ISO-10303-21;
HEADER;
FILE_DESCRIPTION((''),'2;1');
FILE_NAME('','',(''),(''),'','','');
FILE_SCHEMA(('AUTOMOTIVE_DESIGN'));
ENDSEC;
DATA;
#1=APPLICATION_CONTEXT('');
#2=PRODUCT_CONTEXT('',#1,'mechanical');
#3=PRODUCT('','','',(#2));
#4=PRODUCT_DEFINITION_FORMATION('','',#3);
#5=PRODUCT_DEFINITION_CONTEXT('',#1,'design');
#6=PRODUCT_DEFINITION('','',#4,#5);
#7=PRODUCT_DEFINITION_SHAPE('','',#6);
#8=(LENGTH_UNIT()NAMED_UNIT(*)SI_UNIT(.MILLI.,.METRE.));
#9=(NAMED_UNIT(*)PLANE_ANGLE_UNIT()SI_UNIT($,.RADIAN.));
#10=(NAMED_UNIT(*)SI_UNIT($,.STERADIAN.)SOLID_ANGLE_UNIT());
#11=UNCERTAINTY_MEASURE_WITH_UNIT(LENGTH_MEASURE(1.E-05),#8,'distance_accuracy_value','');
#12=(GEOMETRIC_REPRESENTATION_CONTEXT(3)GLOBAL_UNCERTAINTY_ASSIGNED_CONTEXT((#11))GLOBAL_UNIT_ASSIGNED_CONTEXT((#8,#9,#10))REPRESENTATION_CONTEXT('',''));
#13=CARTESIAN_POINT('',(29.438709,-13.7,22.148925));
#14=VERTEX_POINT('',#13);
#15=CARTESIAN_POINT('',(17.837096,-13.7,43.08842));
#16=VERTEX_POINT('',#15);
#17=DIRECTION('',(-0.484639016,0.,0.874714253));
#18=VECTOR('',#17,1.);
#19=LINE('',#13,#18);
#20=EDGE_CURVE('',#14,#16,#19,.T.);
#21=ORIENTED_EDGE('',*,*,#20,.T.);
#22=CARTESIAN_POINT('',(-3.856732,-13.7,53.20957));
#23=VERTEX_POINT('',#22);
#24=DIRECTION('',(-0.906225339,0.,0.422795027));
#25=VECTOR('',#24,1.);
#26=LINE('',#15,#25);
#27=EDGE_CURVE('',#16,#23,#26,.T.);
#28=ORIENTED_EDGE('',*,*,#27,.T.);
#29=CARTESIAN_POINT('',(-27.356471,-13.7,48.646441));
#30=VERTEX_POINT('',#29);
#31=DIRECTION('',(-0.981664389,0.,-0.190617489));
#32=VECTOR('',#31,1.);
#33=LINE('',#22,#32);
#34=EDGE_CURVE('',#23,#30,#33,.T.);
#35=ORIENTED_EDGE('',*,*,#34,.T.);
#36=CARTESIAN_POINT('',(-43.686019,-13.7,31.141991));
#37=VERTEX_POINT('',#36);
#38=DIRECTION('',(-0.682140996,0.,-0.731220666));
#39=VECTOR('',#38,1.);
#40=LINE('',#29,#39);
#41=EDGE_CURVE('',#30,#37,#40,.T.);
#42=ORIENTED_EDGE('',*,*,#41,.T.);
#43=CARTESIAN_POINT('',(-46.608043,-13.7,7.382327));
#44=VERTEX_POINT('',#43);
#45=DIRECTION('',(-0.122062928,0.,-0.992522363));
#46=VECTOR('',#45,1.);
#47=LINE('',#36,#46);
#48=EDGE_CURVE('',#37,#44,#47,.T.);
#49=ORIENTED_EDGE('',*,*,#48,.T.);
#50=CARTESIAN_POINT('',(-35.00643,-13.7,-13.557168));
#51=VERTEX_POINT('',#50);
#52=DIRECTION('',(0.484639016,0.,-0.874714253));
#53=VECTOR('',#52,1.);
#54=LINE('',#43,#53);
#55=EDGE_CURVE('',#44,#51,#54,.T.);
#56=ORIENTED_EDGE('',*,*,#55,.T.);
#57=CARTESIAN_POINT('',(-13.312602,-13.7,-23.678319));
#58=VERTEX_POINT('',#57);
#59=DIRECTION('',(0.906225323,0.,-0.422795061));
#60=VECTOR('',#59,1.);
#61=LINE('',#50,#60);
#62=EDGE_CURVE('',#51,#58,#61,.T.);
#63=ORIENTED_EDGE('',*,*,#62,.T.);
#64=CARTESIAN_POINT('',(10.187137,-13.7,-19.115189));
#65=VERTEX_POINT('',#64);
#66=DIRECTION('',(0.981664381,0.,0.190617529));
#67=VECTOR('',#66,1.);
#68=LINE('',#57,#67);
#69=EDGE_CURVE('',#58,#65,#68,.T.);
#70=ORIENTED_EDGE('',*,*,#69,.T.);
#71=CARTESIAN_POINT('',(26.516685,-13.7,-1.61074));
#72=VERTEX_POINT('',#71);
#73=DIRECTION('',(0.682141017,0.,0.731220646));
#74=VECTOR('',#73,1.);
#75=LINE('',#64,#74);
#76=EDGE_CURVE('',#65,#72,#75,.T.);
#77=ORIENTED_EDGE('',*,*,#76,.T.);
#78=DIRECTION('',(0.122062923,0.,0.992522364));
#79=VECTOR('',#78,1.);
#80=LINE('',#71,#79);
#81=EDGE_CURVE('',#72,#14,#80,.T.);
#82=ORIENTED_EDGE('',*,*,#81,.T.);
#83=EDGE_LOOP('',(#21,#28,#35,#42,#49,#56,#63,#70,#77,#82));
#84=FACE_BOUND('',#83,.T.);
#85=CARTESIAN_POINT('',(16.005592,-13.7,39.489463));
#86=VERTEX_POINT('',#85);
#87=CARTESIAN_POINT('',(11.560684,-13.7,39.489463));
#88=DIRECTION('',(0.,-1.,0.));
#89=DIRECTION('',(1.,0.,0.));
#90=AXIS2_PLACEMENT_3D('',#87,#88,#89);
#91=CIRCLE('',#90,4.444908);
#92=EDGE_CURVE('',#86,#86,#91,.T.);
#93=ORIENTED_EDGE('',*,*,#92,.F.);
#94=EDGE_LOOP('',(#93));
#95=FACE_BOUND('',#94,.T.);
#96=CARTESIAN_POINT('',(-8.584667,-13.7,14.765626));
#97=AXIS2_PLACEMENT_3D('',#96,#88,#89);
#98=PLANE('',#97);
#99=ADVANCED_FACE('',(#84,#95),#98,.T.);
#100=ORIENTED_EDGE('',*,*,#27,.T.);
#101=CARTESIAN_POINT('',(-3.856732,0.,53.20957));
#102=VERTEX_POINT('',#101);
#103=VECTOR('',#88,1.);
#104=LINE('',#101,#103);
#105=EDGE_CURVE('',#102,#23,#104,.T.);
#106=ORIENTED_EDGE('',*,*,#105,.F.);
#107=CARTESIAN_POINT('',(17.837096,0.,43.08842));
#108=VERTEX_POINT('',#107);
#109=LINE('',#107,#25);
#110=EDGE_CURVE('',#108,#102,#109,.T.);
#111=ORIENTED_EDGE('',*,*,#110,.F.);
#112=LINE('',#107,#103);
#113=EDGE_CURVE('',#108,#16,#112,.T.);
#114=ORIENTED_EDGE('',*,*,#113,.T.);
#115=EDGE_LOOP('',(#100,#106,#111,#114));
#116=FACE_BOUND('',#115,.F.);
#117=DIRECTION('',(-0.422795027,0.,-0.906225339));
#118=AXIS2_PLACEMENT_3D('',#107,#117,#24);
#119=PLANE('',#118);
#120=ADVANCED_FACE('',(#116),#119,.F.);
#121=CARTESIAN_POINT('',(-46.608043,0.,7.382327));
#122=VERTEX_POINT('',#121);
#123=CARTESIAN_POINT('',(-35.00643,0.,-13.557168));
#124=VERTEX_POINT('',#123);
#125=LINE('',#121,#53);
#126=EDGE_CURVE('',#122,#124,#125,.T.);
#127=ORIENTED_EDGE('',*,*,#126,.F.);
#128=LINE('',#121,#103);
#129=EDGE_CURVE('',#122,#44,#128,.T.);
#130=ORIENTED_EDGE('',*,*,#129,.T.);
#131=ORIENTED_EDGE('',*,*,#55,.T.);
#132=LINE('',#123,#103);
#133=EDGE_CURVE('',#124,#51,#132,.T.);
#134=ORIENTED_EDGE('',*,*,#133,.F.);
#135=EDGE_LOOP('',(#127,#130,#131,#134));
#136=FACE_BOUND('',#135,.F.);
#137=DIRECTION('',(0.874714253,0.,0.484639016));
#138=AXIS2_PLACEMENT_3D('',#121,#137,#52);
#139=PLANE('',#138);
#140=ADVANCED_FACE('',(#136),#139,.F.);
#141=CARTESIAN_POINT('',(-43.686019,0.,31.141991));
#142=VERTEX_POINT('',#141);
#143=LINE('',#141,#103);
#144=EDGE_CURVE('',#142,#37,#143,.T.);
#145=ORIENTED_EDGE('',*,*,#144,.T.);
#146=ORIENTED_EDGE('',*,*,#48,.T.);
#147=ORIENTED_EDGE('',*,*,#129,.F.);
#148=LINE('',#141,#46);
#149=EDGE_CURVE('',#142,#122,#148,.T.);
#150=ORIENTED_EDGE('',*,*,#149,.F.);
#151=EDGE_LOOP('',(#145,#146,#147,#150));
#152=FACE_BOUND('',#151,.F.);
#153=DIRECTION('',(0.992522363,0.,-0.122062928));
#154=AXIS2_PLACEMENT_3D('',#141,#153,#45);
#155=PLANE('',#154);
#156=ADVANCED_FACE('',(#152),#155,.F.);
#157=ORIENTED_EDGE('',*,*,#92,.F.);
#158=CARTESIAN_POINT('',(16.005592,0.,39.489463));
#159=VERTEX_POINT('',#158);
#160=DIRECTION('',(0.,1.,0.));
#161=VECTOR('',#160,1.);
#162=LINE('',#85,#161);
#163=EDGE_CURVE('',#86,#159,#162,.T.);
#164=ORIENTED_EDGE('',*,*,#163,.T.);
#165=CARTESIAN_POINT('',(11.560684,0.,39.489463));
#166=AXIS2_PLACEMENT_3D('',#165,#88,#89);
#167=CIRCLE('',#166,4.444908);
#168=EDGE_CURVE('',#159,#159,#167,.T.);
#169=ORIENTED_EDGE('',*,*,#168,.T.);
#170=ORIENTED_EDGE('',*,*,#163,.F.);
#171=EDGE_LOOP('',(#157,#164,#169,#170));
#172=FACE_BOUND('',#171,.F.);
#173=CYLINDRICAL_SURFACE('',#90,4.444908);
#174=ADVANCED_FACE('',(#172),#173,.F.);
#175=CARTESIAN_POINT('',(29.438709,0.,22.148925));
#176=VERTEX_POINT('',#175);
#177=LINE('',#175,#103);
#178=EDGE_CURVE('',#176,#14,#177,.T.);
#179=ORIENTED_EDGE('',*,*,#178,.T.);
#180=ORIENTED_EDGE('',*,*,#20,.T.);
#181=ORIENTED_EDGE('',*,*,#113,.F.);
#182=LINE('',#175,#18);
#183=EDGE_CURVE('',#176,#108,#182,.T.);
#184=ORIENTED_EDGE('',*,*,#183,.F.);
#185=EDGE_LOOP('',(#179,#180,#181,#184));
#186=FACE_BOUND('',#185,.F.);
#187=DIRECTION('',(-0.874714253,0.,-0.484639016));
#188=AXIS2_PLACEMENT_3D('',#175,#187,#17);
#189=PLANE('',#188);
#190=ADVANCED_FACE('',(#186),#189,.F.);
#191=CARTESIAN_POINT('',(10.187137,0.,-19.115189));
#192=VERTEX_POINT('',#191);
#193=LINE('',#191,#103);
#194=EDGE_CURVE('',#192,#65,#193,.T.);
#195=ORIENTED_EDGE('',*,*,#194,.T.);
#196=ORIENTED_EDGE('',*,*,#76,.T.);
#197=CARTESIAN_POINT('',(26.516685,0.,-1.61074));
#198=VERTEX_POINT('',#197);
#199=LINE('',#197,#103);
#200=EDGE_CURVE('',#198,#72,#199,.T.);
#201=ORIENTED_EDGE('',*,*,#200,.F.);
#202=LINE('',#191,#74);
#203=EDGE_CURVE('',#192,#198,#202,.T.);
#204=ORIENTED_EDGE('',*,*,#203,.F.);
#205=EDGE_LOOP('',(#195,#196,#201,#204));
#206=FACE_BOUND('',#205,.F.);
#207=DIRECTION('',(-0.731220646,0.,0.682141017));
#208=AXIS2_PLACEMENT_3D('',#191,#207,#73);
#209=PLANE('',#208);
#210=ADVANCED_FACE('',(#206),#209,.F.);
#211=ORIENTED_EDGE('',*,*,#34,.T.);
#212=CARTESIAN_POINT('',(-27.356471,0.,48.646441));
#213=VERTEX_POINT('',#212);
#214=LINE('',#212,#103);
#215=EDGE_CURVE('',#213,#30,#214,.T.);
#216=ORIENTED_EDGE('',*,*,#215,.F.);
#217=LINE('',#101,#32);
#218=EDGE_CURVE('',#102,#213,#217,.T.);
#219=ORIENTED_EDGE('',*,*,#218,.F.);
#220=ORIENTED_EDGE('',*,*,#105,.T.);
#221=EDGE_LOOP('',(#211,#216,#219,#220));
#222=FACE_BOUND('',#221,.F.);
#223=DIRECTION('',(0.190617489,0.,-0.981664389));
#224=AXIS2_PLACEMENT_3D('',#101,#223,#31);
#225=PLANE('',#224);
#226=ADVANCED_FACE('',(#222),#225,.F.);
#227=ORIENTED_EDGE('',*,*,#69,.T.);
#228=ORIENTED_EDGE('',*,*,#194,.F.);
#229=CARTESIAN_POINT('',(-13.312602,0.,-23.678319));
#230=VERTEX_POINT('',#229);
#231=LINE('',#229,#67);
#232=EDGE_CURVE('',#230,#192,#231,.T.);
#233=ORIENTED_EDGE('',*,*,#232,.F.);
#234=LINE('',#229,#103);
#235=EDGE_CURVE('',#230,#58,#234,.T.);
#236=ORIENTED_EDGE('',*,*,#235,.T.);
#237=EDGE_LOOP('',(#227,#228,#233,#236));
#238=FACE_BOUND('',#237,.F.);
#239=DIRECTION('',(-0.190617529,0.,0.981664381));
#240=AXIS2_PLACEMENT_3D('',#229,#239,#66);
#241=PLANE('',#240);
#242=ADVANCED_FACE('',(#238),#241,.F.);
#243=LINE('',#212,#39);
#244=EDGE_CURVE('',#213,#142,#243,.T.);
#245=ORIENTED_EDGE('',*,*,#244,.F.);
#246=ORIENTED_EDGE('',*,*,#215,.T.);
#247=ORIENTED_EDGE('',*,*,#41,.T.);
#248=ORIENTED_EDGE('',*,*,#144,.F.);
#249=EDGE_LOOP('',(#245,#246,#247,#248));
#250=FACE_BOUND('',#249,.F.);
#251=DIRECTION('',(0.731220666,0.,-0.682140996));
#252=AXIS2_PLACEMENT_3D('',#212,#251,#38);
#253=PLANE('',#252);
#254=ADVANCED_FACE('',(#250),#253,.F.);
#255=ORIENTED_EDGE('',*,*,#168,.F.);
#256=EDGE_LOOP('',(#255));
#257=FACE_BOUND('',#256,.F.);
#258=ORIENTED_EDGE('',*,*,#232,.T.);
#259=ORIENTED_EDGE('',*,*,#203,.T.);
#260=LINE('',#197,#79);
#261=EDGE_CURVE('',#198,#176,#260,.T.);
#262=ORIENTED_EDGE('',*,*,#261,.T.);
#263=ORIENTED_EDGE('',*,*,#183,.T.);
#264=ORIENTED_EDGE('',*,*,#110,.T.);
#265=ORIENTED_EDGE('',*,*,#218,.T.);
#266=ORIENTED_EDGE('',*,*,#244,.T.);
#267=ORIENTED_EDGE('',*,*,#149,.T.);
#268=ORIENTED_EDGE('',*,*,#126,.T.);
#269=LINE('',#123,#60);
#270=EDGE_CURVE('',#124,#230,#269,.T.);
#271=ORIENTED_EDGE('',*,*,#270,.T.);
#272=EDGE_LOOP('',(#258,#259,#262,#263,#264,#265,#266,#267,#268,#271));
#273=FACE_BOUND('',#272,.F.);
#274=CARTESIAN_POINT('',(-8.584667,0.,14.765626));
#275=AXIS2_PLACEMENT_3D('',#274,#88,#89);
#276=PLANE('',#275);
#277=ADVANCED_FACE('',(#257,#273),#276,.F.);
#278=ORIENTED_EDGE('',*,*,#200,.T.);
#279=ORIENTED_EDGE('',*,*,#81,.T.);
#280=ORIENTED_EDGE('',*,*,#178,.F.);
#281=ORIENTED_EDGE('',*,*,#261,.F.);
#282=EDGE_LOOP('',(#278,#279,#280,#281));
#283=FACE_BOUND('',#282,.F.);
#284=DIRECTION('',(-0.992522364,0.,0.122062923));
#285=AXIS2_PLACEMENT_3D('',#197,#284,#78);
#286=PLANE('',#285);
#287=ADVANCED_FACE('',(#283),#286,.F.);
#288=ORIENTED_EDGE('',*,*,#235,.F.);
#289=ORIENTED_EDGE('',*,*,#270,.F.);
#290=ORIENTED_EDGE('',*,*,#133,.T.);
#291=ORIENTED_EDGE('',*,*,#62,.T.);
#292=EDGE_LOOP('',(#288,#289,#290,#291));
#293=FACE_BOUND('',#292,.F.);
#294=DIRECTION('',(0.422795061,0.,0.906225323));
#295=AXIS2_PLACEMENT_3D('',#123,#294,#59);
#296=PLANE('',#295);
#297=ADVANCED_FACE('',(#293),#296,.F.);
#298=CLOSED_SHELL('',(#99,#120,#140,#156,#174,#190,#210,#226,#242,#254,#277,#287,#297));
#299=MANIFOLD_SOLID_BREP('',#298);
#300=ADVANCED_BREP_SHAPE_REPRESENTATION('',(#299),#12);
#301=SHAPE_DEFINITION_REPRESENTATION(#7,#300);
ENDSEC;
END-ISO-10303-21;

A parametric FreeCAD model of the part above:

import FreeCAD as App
import Part
import Sketcher

doc = App.newDocument("Part")
body = doc.addObject("PartDesign::Body", "Body")

sketch1 = body.newObject("Sketcher::SketchObject", "Sketch")
sketch1.AttachmentSupport = (doc.getObject("XZ_Plane"), [""])
sketch1.MapMode = "FlatFace"
sketch1.addGeometry(Part.LineSegment(App.Vector(-13, -24, 0), App.Vector(10, -19, 0)), False)
sketch1.addGeometry(Part.LineSegment(App.Vector(10, -19, 0), App.Vector(27, -2, 0)), False)
sketch1.addGeometry(Part.LineSegment(App.Vector(27, -2, 0), App.Vector(29, 22, 0)), False)
sketch1.addGeometry(Part.LineSegment(App.Vector(29, 22, 0), App.Vector(18, 43, 0)), False)
sketch1.addGeometry(Part.LineSegment(App.Vector(18, 43, 0), App.Vector(-4, 53, 0)), False)
sketch1.addGeometry(Part.LineSegment(App.Vector(-4, 53, 0), App.Vector(-27, 49, 0)), False)
sketch1.addGeometry(Part.LineSegment(App.Vector(-27, 49, 0), App.Vector(-44, 31, 0)), False)
sketch1.addGeometry(Part.LineSegment(App.Vector(-44, 31, 0), App.Vector(-47, 7, 0)), False)
sketch1.addGeometry(Part.LineSegment(App.Vector(-47, 7, 0), App.Vector(-35, -14, 0)), False)
sketch1.addGeometry(Part.LineSegment(App.Vector(-35, -14, 0), App.Vector(-13, -24, 0)), False)
sketch1.addConstraint(Sketcher.Constraint("Coincident", 0, 2, 1, 1))
sketch1.addConstraint(Sketcher.Constraint("Coincident", 1, 2, 2, 1))
sketch1.addConstraint(Sketcher.Constraint("Coincident", 2, 2, 3, 1))
sketch1.addConstraint(Sketcher.Constraint("Coincident", 3, 2, 4, 1))
sketch1.addConstraint(Sketcher.Constraint("Coincident", 4, 2, 5, 1))
sketch1.addConstraint(Sketcher.Constraint("Coincident", 5, 2, 6, 1))
sketch1.addConstraint(Sketcher.Constraint("Coincident", 6, 2, 7, 1))
sketch1.addConstraint(Sketcher.Constraint("Coincident", 7, 2, 8, 1))
sketch1.addConstraint(Sketcher.Constraint("Coincident", 8, 2, 9, 1))
sketch1.addConstraint(Sketcher.Constraint("Coincident", 9, 2, 0, 1))
sketch1.addConstraint(Sketcher.Constraint("Parallel", 0, 5))
sketch1.addConstraint(Sketcher.Constraint("Parallel", 1, 6))
sketch1.addConstraint(Sketcher.Constraint("Parallel", 2, 7))
sketch1.addConstraint(Sketcher.Constraint("Parallel", 3, 8))
sketch1.addConstraint(Sketcher.Constraint("Parallel", 4, 9))
sketch1.addConstraint(Sketcher.Constraint("Equal", 0, 1))
sketch1.addConstraint(Sketcher.Constraint("Equal", 1, 2))
sketch1.addConstraint(Sketcher.Constraint("Equal", 2, 3))
sketch1.addConstraint(Sketcher.Constraint("Equal", 3, 4))
sketch1.addConstraint(Sketcher.Constraint("Equal", 4, 5))
sketch1.addConstraint(Sketcher.Constraint("Equal", 5, 6))
sketch1.addConstraint(Sketcher.Constraint("Equal", 6, 7))
sketch1.addConstraint(Sketcher.Constraint("Distance", 0, 23.938669))
sketch1.addConstraint(Sketcher.Constraint("DistanceY", 0, 2, -1, 1, 19.115189))
sketch1.addConstraint(Sketcher.Constraint("DistanceY", 1, 2, -1, 1, 1.61074))
sketch1.addConstraint(Sketcher.Constraint("DistanceX", -1, 1, 2, 2, 29.438709))
sketch1.addConstraint(Sketcher.Constraint("DistanceY", -1, 1, 3, 2, 43.08842))
sketch1.addConstraint(Sketcher.Constraint("DistanceX", 4, 2, -1, 1, 3.856732))
sketch1.addConstraint(Sketcher.Constraint("DistanceY", -1, 1, 4, 2, 53.20957))
sketch1.addConstraint(Sketcher.Constraint("DistanceX", 5, 2, -1, 1, 27.356471))
pad1 = body.newObject("PartDesign::Pad", "Pad")
pad1.Profile = sketch1
pad1.Length = 13.7

sketch2 = body.newObject("Sketcher::SketchObject", "Sketch001")
sketch2.AttachmentSupport = (doc.getObject("XZ_Plane"), [""])
sketch2.MapMode = "FlatFace"
sketch2.AttachmentOffset = App.Placement(App.Vector(0, 0, 13.7), App.Rotation())
sketch2.addGeometry(Part.Circle(App.Vector(11.6, 39.5, 0), App.Vector(0, 0, 1), 4.4), False)
sketch2.addConstraint(Sketcher.Constraint("Diameter", 0, 8.889816))
sketch2.addConstraint(Sketcher.Constraint("DistanceX", -1, 1, 0, 3, 11.560684))
sketch2.addConstraint(Sketcher.Constraint("DistanceY", -1, 1, 0, 3, 39.489463))
pocket1 = body.newObject("PartDesign::Pocket", "Pocket")
pocket1.Profile = sketch2
pocket1.Length = 39.7

doc.recompute()
